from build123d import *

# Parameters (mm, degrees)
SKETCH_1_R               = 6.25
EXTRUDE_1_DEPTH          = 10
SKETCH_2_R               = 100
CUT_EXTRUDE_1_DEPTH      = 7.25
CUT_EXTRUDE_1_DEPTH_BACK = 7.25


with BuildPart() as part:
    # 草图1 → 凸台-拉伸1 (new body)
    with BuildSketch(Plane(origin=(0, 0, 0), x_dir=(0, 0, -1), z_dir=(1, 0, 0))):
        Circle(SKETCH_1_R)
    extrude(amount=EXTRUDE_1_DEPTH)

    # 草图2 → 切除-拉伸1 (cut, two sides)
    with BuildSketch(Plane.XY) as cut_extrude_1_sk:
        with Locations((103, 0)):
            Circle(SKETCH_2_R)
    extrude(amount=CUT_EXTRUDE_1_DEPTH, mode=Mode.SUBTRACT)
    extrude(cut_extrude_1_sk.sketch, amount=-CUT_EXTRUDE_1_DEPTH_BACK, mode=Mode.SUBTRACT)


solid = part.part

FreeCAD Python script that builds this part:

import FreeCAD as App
import Part
import Sketcher

V = App.Vector
Q = App.Units.Quantity

doc = App.newDocument("Part")
body = doc.addObject("PartDesign::Body", "Body")

# Sketch on YZ plane
sketch1 = doc.addObject("Sketcher::SketchObject", "Sketch")
body.addObject(sketch1)
sketch1.AttachmentSupport = (doc.YZ_Plane, [""])
sketch1.MapMode = "FlatFace"
sketch1.addGeometry(Part.Circle(V(0, 0, 0), V(0, 0, 1), 6), False)
sketch1.addConstraint([
    Sketcher.Constraint("Coincident", 0, 3, -1, 1),
    Sketcher.Constraint("Diameter", 0, Q("12.5 mm")),
])
pad1 = doc.addObject("PartDesign::Pad", "Pad")
body.addObject(pad1)
pad1.Profile = sketch1
pad1.Length = 10

# Sketch on XY plane
sketch2 = doc.addObject("Sketcher::SketchObject", "Sketch001")
body.addObject(sketch2)
sketch2.AttachmentSupport = (doc.XY_Plane, [""])
sketch2.MapMode = "FlatFace"
sketch2.addGeometry(Part.Circle(V(103, 0, 0), V(0, 0, 1), 100), False)
sketch2.addConstraint([
    Sketcher.Constraint("PointOnObject", 0, 3, -1),
    Sketcher.Constraint("Diameter", 0, Q("200 mm")),
    Sketcher.Constraint("DistanceX", -1, 1, 0, 3, Q("103 mm")),
])
pocket1 = doc.addObject("PartDesign::Pocket", "Pocket")
body.addObject(pocket1)
pocket1.Profile = sketch2
pocket1.Type = "ThroughAll"
pocket1.Midplane = True

doc.recompute()
